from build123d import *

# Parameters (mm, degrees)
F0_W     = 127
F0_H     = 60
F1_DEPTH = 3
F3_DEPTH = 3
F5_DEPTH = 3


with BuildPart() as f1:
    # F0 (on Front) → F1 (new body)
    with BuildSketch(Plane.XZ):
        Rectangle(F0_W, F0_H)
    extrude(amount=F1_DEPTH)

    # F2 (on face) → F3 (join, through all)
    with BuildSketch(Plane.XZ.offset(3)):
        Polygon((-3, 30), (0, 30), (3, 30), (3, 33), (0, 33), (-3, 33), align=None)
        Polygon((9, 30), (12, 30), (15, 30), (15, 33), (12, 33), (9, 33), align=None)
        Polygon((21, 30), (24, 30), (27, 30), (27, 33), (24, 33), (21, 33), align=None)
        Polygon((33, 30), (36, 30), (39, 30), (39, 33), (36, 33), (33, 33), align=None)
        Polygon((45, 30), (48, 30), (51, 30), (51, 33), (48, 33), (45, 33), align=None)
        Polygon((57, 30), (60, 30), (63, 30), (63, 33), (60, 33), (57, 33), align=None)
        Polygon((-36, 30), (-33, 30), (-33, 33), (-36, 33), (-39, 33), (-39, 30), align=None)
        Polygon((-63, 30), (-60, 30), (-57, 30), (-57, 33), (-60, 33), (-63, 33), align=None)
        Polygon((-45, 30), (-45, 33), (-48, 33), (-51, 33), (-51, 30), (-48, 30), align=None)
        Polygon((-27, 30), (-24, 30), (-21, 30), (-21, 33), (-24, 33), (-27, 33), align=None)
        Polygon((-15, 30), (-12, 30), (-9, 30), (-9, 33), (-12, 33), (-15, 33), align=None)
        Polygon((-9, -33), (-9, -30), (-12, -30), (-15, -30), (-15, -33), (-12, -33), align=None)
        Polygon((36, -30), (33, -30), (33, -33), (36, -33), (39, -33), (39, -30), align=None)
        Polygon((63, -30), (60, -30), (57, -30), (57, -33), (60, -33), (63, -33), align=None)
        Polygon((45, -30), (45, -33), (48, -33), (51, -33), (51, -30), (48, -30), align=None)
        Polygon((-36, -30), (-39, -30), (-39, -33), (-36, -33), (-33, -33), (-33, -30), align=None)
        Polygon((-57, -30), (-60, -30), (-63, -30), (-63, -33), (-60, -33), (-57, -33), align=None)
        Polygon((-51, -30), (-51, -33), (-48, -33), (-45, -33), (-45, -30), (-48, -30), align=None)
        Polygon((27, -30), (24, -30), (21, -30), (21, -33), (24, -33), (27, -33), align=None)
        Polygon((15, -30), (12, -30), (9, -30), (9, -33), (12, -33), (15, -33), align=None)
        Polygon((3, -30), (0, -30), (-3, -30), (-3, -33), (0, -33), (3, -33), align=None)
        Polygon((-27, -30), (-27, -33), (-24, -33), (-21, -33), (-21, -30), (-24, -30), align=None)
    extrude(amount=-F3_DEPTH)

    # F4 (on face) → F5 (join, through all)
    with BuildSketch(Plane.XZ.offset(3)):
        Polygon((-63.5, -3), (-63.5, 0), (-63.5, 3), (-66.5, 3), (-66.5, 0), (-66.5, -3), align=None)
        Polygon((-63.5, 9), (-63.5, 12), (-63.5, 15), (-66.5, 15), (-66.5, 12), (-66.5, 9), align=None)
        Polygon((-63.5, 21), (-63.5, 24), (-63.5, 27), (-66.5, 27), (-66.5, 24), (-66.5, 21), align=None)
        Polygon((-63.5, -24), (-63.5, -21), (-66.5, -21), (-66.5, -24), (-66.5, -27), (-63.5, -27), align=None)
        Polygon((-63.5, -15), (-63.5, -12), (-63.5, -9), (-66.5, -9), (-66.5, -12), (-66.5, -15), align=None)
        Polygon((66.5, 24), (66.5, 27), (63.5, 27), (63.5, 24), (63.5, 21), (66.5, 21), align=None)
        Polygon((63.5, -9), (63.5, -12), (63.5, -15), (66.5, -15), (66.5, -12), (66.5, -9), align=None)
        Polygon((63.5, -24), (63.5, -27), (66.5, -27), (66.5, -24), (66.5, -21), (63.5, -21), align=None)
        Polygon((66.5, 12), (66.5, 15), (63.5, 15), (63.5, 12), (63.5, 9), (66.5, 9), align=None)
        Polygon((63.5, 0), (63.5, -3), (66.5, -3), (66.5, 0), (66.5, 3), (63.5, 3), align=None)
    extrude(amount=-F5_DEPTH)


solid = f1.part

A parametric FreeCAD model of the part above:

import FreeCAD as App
import Part
import Sketcher
from FreeCAD import Vector
Q = App.Units.Quantity


def add_polygon(sketch, points):
    """Adds a closed chain of lines whose ends are joined by coincident constraints."""
    first, n = sketch.GeometryCount, len(points)
    for a, b in zip(points, points[1:] + points[:1]):
        sketch.addGeometry(Part.LineSegment(App.Vector(*a, 0), App.Vector(*b, 0)), False)
    for i in range(n):
        sketch.addConstraint(Sketcher.Constraint("Coincident", first + i, 2, first + (i + 1) % n, 1))

doc = App.newDocument("Part")
body = doc.addObject("PartDesign::Body", "Body")

sketch1 = body.newObject("Sketcher::SketchObject", "Sketch")
sketch1.AttachmentSupport = (doc.getObject("XZ_Plane"), [""])
sketch1.MapMode = "FlatFace"
add_polygon(sketch1, [(-63.5, 30), (-63.5, -30), (63.5, -30), (63.5, 30)])
sketch1.addConstraint([
    Sketcher.Constraint("Vertical", 0),
    Sketcher.Constraint("Horizontal", 1),
    Sketcher.Constraint("Vertical", 2),
    Sketcher.Constraint("Horizontal", 3),
    Sketcher.Constraint("Symmetric", 0, 2, 2, 2, -1, 1),
    Sketcher.Constraint("DistanceX", 1, 1, 1, 2, Q("127 mm")),
    Sketcher.Constraint("DistanceY", 0, 2, 0, 1, Q("60 mm")),
])
pad1 = body.newObject("PartDesign::Pad", "Pad")
pad1.Profile = sketch1
pad1.Length = 3

sketch2 = body.newObject("Sketcher::SketchObject", "Sketch001")
sketch2.AttachmentSupport = (doc.getObject("XZ_Plane"), [""])
sketch2.MapMode = "FlatFace"
sketch2.AttachmentOffset = App.Placement(Vector(0, 0, 3), App.Rotation())
add_polygon(sketch2, [(-3, 30), (3, 30), (3, 33), (-3, 33)])
add_polygon(sketch2, [(9, 30), (15, 30), (15, 33), (9, 33)])
add_polygon(sketch2, [(21, 30), (27, 30), (27, 33), (21, 33)])
add_polygon(sketch2, [(33, 30), (39, 30), (39, 33), (33, 33)])
add_polygon(sketch2, [(45, 30), (51, 30), (51, 33), (45, 33)])
add_polygon(sketch2, [(57, 30), (63, 30), (63, 33), (57, 33)])
add_polygon(sketch2, [(-33, 30), (-33, 33), (-39, 33), (-39, 30)])
add_polygon(sketch2, [(-63, 30), (-57, 30), (-57, 33), (-63, 33)])
add_polygon(sketch2, [(-45, 30), (-45, 33), (-51, 33), (-51, 30)])
add_polygon(sketch2, [(-27, 30), (-21, 30), (-21, 33), (-27, 33)])
add_polygon(sketch2, [(-15, 30), (-9, 30), (-9, 33), (-15, 33)])
add_polygon(sketch2, [(-9, -33), (-9, -30), (-15, -30), (-15, -33)])
add_polygon(sketch2, [(33, -30), (33, -33), (39, -33), (39, -30)])
add_polygon(sketch2, [(63, -30), (57, -30), (57, -33), (63, -33)])
add_polygon(sketch2, [(45, -30), (45, -33), (51, -33), (51, -30)])
add_polygon(sketch2, [(-39, -30), (-39, -33), (-33, -33), (-33, -30)])
add_polygon(sketch2, [(-57, -30), (-63, -30), (-63, -33), (-57, -33)])
add_polygon(sketch2, [(-51, -30), (-51, -33), (-45, -33), (-45, -30)])
add_polygon(sketch2, [(27, -30), (21, -30), (21, -33), (27, -33)])
add_polygon(sketch2, [(15, -30), (9, -30), (9, -33), (15, -33)])
add_polygon(sketch2, [(3, -30), (-3, -30), (-3, -33), (3, -33)])
add_polygon(sketch2, [(-27, -30), (-27, -33), (-21, -33), (-21, -30)])
sketch2.addConstraint([
    Sketcher.Constraint("Horizontal", 0),
    Sketcher.Constraint("Vertical", 1),
    Sketcher.Constraint("Horizontal", 2),
    Sketcher.Constraint("Vertical", 3),
    Sketcher.Constraint("Horizontal", 4),
    Sketcher.Constraint("Vertical", 5),
    Sketcher.Constraint("Horizontal", 6),
    Sketcher.Constraint("Vertical", 7),
    Sketcher.Constraint("Horizontal", 8),
    Sketcher.Constraint("Vertical", 9),
    Sketcher.Constraint("Horizontal", 10),
    Sketcher.Constraint("Vertical", 11),
    Sketcher.Constraint("Horizontal", 12),
    Sketcher.Constraint("Vertical", 13),
    Sketcher.Constraint("Horizontal", 14),
    Sketcher.Constraint("Vertical", 15),
    Sketcher.Constraint("Horizontal", 16),
    Sketcher.Constraint("Vertical", 17),
    Sketcher.Constraint("Horizontal", 18),
    Sketcher.Constraint("Vertical", 19),
    Sketcher.Constraint("Horizontal", 20),
    Sketcher.Constraint("Vertical", 21),
    Sketcher.Constraint("Horizontal", 22),
    Sketcher.Constraint("Vertical", 23),
    Sketcher.Constraint("Vertical", 24),
    Sketcher.Constraint("Horizontal", 25),
    Sketcher.Constraint("Vertical", 26),
    Sketcher.Constraint("Horizontal", 27),
    Sketcher.Constraint("Horizontal", 28),
    Sketcher.Constraint("Vertical", 29),
    Sketcher.Constraint("Horizontal", 30),
    Sketcher.Constraint("Vertical", 31),
    Sketcher.Constraint("Vertical", 32),
    Sketcher.Constraint("Horizontal", 33),
    Sketcher.Constraint("Vertical", 34),
    Sketcher.Constraint("Horizontal", 35),
    Sketcher.Constraint("Horizontal", 36),
    Sketcher.Constraint("Vertical", 37),
    Sketcher.Constraint("Horizontal", 38),
    Sketcher.Constraint("Vertical", 39),
    Sketcher.Constraint("Horizontal", 40),
    Sketcher.Constraint("Vertical", 41),
    Sketcher.Constraint("Horizontal", 42),
    Sketcher.Constraint("Vertical", 43),
    Sketcher.Constraint("Vertical", 44),
    Sketcher.Constraint("Horizontal", 45),
    Sketcher.Constraint("Vertical", 46),
    Sketcher.Constraint("Horizontal", 47),
    Sketcher.Constraint("Vertical", 48),
    Sketcher.Constraint("Horizontal", 49),
    Sketcher.Constraint("Vertical", 50),
    Sketcher.Constraint("Horizontal", 51),
    Sketcher.Constraint("Horizontal", 52),
    Sketcher.Constraint("Vertical", 53),
    Sketcher.Constraint("Horizontal", 54),
    Sketcher.Constraint("Vertical", 55),
    Sketcher.Constraint("Vertical", 56),
    Sketcher.Constraint("Horizontal", 57),
    Sketcher.Constraint("Vertical", 58),
    Sketcher.Constraint("Horizontal", 59),
    Sketcher.Constraint("Vertical", 60),
    Sketcher.Constraint("Horizontal", 61),
    Sketcher.Constraint("Vertical", 62),
    Sketcher.Constraint("Horizontal", 63),
    Sketcher.Constraint("Horizontal", 64),
    Sketcher.Constraint("Vertical", 65),
    Sketcher.Constraint("Horizontal", 66),
    Sketcher.Constraint("Vertical", 67),
    Sketcher.Constraint("Vertical", 68),
    Sketcher.Constraint("Horizontal", 69),
    Sketcher.Constraint("Vertical", 70),
    Sketcher.Constraint("Horizontal", 71),
    Sketcher.Constraint("Horizontal", 72),
    Sketcher.Constraint("Vertical", 73),
    Sketcher.Constraint("Horizontal", 74),
    Sketcher.Constraint("Vertical", 75),
    Sketcher.Constraint("Horizontal", 76),
    Sketcher.Constraint("Vertical", 77),
    Sketcher.Constraint("Horizontal", 78),
    Sketcher.Constraint("Vertical", 79),
    Sketcher.Constraint("Horizontal", 80),
    Sketcher.Constraint("Vertical", 81),
    Sketcher.Constraint("Horizontal", 82),
    Sketcher.Constraint("Vertical", 83),
    Sketcher.Constraint("Vertical", 84),
    Sketcher.Constraint("Horizontal", 85),
    Sketcher.Constraint("Vertical", 86),
    Sketcher.Constraint("Horizontal", 87),
    Sketcher.Constraint("Symmetric", 7, 2, 44, 2, -1, 1),
    Sketcher.Constraint("Symmetric", 5, 2, 46, 2, -1, 1),
    Sketcher.Constraint("Symmetric", 24, 2, 48, 2, -1, 1),
    Sketcher.Constraint("Symmetric", 26, 2, 50, 2, -1, 1),
    Sketcher.Constraint("Symmetric", 28, 2, 52, 2, -1, 1),
    Sketcher.Constraint("Symmetric", 30, 2, 54, 2, -1, 1),
    Sketcher.Constraint("Symmetric", 32, 2, 56, 2, -1, 1),
    Sketcher.Constraint("Symmetric", 34, 2, 58, 2, -1, 1),
    Sketcher.Constraint("Symmetric", 13, 2, 60, 2, -1, 1),
    Sketcher.Constraint("Symmetric", 15, 2, 62, 2, -1, 1),
    Sketcher.Constraint("Symmetric", 20, 2, 64, 2, -1, 1),
    Sketcher.Constraint("Symmetric", 22, 2, 66, 2, -1, 1),
    Sketcher.Constraint("Symmetric", 17, 2, 68, 2, -1, 1),
    Sketcher.Constraint("Symmetric", 19, 2, 70, 2, -1, 1),
    Sketcher.Constraint("Symmetric", 36, 2, 72, 2, -1, 1),
    Sketcher.Constraint("Symmetric", 38, 2, 74, 2, -1, 1),
    Sketcher.Constraint("Symmetric", 40, 2, 76, 2, -1, 1),
    Sketcher.Constraint("Symmetric", 42, 2, 78, 2, -1, 1),
    Sketcher.Constraint("Symmetric", 0, 2, 80, 2, -1, 1),
    Sketcher.Constraint("Symmetric", 2, 2, 82, 2, -1, 1),
    Sketcher.Constraint("Symmetric", 9, 2, 84, 2, -1, 1),
    Sketcher.Constraint("Symmetric", 11, 2, 86, 2, -1, 1),
    Sketcher.Constraint("Symmetric", 14, 2, 24, 2, -2),
    Sketcher.Constraint("Symmetric", 12, 2, 26, 2, -2),
    Sketcher.Constraint("Symmetric", 23, 2, 28, 2, -2),
    Sketcher.Constraint("Symmetric", 21, 2, 30, 2, -2),
    Sketcher.Constraint("Symmetric", 18, 2, 32, 2, -2),
    Sketcher.Constraint("Symmetric", 16, 2, 34, 2, -2),
    Sketcher.Constraint("Symmetric", 11, 2, 36, 2, -2),
    Sketcher.Constraint("Symmetric", 9, 2, 38, 2, -2),
    Sketcher.Constraint("Symmetric", 7, 2, 40, 2, -2),
    Sketcher.Constraint("Symmetric", 5, 2, 42, 2, -2),
    Sketcher.Constraint("Horizontal", 3, 2, 4, 2),
    Sketcher.Constraint("Horizontal", 2, 2, 5, 2),
    Sketcher.Constraint("Horizontal", 7, 2, 8, 2),
    Sketcher.Constraint("Horizontal", 6, 2, 9, 2),
    Sketcher.Constraint("Horizontal", 11, 2, 12, 2),
    Sketcher.Constraint("Horizontal", 10, 2, 13, 2),
    Sketcher.Constraint("Horizontal", 15, 2, 16, 2),
    Sketcher.Constraint("Horizontal", 14, 2, 17, 2),
    Sketcher.Constraint("Horizontal", 19, 2, 20, 2),
    Sketcher.Constraint("Horizontal", 18, 2, 21, 2),
    Sketcher.Constraint("Vertical", 3, 2, 80, 2),
    Sketcher.Constraint("Equal", 2, 4),
    Sketcher.Constraint("Equal", 6, 8),
    Sketcher.Constraint("Equal", 10, 12),
    Sketcher.Constraint("Equal", 14, 16),
    Sketcher.Constraint("Equal", 18, 20),
    Sketcher.Constraint("DistanceX", 0, 1, 0, 2, Q("6 mm")),
    Sketcher.Constraint("DistanceY", 1, 1, 1, 2, Q("3 mm")),
    Sketcher.Constraint("DistanceY", -1, 1, 0, 2, Q("30 mm")),
    Sketcher.Constraint("DistanceX", -1, 1, 4, 2, Q("15 mm")),
    Sketcher.Constraint("DistanceX", -1, 1, 8, 2, Q("27 mm")),
    Sketcher.Constraint("DistanceX", -1, 1, 12, 2, Q("39 mm")),
    Sketcher.Constraint("DistanceX", -1, 1, 16, 2, Q("51 mm")),
    Sketcher.Constraint("DistanceX", -1, 1, 20, 2, Q("63 mm")),
])
pad2 = body.newObject("PartDesign::Pad", "Pad001")
pad2.Profile = sketch2
pad2.Type = "UpToLast"
pad2.Reversed = True

sketch3 = body.newObject("Sketcher::SketchObject", "Sketch002")
sketch3.AttachmentSupport = (doc.getObject("XZ_Plane"), [""])
sketch3.MapMode = "FlatFace"
sketch3.AttachmentOffset = App.Placement(Vector(0, 0, 3), App.Rotation())
add_polygon(sketch3, [(-63.5, -3), (-63.5, 3), (-66.5, 3), (-66.5, -3)])
add_polygon(sketch3, [(-63.5, 9), (-63.5, 15), (-66.5, 15), (-66.5, 9)])
add_polygon(sketch3, [(-63.5, 21), (-63.5, 27), (-66.5, 27), (-66.5, 21)])
add_polygon(sketch3, [(-63.5, -21), (-66.5, -21), (-66.5, -27), (-63.5, -27)])
add_polygon(sketch3, [(-63.5, -15), (-63.5, -9), (-66.5, -9), (-66.5, -15)])
add_polygon(sketch3, [(66.5, 27), (63.5, 27), (63.5, 21), (66.5, 21)])
add_polygon(sketch3, [(63.5, -9), (63.5, -15), (66.5, -15), (66.5, -9)])
add_polygon(sketch3, [(63.5, -27), (66.5, -27), (66.5, -21), (63.5, -21)])
add_polygon(sketch3, [(66.5, 15), (63.5, 15), (63.5, 9), (66.5, 9)])
add_polygon(sketch3, [(63.5, -3), (66.5, -3), (66.5, 3), (63.5, 3)])
sketch3.addConstraint([
    Sketcher.Constraint("Vertical", 0),
    Sketcher.Constraint("Horizontal", 1),
    Sketcher.Constraint("Vertical", 2),
    Sketcher.Constraint("Horizontal", 3),
    Sketcher.Constraint("Vertical", 4),
    Sketcher.Constraint("Horizontal", 5),
    Sketcher.Constraint("Vertical", 6),
    Sketcher.Constraint("Horizontal", 7),
    Sketcher.Constraint("Vertical", 8),
    Sketcher.Constraint("Horizontal", 9),
    Sketcher.Constraint("Vertical", 10),
    Sketcher.Constraint("Horizontal", 11),
    Sketcher.Constraint("Horizontal", 12),
    Sketcher.Constraint("Vertical", 13),
    Sketcher.Constraint("Horizontal", 14),
    Sketcher.Constraint("Vertical", 15),
    Sketcher.Constraint("Vertical", 16),
    Sketcher.Constraint("Horizontal", 17),
    Sketcher.Constraint("Vertical", 18),
    Sketcher.Constraint("Horizontal", 19),
    Sketcher.Constraint("Horizontal", 20),
    Sketcher.Constraint("Vertical", 21),
    Sketcher.Constraint("Horizontal", 22),
    Sketcher.Constraint("Vertical", 23),
    Sketcher.Constraint("Vertical", 24),
    Sketcher.Constraint("Horizontal", 25),
    Sketcher.Constraint("Vertical", 26),
    Sketcher.Constraint("Horizontal", 27),
    Sketcher.Constraint("Horizontal", 28),
    Sketcher.Constraint("Vertical", 29),
    Sketcher.Constraint("Horizontal", 30),
    Sketcher.Constraint("Vertical", 31),
    Sketcher.Constraint("Horizontal", 32),
    Sketcher.Constraint("Vertical", 33),
    Sketcher.Constraint("Horizontal", 34),
    Sketcher.Constraint("Vertical", 35),
    Sketcher.Constraint("Horizontal", 36),
    Sketcher.Constraint("Vertical", 37),
    Sketcher.Constraint("Horizontal", 38),
    Sketcher.Constraint("Vertical", 39),
    Sketcher.Constraint("Symmetric", 14, 2, 20, 2, -1, 1),
    Sketcher.Constraint("Symmetric", 12, 2, 22, 2, -1, 1),
    Sketcher.Constraint("Symmetric", 4, 2, 24, 2, -1, 1),
    Sketcher.Constraint("Symmetric", 6, 2, 26, 2, -1, 1),
    Sketcher.Constraint("Symmetric", 9, 2, 28, 2, -1, 1),
    Sketcher.Constraint("Symmetric", 11, 2, 30, 2, -1, 1),
    Sketcher.Constraint("Symmetric", 19, 2, 32, 2, -1, 1),
    Sketcher.Constraint("Symmetric", 17, 2, 34, 2, -1, 1),
    Sketcher.Constraint("Symmetric", 1, 2, 36, 2, -1, 1),
    Sketcher.Constraint("Symmetric", 3, 2, 38, 2, -1, 1),
    Sketcher.Constraint("Symmetric", 8, 2, 20, 2, -2),
    Sketcher.Constraint("Symmetric", 10, 2, 22, 2, -2),
    Sketcher.Constraint("Symmetric", 19, 2, 24, 2, -2),
    Sketcher.Constraint("Symmetric", 17, 2, 26, 2, -2),
    Sketcher.Constraint("Horizontal", 3, 2, 36, 2),
    Sketcher.Constraint("Vertical", 3, 2, 4, 2),
    Sketcher.Constraint("Vertical", 2, 2, 5, 2),
    Sketcher.Constraint("Vertical", 7, 2, 8, 2),
    Sketcher.Constraint("Vertical", 6, 2, 9, 2),
    Sketcher.Constraint("Equal", 2, 4),
    Sketcher.Constraint("Equal", 6, 8),
    Sketcher.Constraint("DistanceX", 1, 2, 1, 1, Q("3 mm")),
    Sketcher.Constraint("DistanceY", 0, 1, 0, 2, Q("6 mm")),
    Sketcher.Constraint("DistanceY", -1, 1, 4, 2, Q("15 mm")),
    Sketcher.Constraint("DistanceY", -1, 1, 8, 2, Q("27 mm")),
    Sketcher.Constraint("DistanceX", 8, 2, 20, 2, Q("127 mm")),
])
pad3 = body.newObject("PartDesign::Pad", "Pad002")
pad3.Profile = sketch3
pad3.Type = "UpToLast"
pad3.Reversed = True

doc.recompute()
